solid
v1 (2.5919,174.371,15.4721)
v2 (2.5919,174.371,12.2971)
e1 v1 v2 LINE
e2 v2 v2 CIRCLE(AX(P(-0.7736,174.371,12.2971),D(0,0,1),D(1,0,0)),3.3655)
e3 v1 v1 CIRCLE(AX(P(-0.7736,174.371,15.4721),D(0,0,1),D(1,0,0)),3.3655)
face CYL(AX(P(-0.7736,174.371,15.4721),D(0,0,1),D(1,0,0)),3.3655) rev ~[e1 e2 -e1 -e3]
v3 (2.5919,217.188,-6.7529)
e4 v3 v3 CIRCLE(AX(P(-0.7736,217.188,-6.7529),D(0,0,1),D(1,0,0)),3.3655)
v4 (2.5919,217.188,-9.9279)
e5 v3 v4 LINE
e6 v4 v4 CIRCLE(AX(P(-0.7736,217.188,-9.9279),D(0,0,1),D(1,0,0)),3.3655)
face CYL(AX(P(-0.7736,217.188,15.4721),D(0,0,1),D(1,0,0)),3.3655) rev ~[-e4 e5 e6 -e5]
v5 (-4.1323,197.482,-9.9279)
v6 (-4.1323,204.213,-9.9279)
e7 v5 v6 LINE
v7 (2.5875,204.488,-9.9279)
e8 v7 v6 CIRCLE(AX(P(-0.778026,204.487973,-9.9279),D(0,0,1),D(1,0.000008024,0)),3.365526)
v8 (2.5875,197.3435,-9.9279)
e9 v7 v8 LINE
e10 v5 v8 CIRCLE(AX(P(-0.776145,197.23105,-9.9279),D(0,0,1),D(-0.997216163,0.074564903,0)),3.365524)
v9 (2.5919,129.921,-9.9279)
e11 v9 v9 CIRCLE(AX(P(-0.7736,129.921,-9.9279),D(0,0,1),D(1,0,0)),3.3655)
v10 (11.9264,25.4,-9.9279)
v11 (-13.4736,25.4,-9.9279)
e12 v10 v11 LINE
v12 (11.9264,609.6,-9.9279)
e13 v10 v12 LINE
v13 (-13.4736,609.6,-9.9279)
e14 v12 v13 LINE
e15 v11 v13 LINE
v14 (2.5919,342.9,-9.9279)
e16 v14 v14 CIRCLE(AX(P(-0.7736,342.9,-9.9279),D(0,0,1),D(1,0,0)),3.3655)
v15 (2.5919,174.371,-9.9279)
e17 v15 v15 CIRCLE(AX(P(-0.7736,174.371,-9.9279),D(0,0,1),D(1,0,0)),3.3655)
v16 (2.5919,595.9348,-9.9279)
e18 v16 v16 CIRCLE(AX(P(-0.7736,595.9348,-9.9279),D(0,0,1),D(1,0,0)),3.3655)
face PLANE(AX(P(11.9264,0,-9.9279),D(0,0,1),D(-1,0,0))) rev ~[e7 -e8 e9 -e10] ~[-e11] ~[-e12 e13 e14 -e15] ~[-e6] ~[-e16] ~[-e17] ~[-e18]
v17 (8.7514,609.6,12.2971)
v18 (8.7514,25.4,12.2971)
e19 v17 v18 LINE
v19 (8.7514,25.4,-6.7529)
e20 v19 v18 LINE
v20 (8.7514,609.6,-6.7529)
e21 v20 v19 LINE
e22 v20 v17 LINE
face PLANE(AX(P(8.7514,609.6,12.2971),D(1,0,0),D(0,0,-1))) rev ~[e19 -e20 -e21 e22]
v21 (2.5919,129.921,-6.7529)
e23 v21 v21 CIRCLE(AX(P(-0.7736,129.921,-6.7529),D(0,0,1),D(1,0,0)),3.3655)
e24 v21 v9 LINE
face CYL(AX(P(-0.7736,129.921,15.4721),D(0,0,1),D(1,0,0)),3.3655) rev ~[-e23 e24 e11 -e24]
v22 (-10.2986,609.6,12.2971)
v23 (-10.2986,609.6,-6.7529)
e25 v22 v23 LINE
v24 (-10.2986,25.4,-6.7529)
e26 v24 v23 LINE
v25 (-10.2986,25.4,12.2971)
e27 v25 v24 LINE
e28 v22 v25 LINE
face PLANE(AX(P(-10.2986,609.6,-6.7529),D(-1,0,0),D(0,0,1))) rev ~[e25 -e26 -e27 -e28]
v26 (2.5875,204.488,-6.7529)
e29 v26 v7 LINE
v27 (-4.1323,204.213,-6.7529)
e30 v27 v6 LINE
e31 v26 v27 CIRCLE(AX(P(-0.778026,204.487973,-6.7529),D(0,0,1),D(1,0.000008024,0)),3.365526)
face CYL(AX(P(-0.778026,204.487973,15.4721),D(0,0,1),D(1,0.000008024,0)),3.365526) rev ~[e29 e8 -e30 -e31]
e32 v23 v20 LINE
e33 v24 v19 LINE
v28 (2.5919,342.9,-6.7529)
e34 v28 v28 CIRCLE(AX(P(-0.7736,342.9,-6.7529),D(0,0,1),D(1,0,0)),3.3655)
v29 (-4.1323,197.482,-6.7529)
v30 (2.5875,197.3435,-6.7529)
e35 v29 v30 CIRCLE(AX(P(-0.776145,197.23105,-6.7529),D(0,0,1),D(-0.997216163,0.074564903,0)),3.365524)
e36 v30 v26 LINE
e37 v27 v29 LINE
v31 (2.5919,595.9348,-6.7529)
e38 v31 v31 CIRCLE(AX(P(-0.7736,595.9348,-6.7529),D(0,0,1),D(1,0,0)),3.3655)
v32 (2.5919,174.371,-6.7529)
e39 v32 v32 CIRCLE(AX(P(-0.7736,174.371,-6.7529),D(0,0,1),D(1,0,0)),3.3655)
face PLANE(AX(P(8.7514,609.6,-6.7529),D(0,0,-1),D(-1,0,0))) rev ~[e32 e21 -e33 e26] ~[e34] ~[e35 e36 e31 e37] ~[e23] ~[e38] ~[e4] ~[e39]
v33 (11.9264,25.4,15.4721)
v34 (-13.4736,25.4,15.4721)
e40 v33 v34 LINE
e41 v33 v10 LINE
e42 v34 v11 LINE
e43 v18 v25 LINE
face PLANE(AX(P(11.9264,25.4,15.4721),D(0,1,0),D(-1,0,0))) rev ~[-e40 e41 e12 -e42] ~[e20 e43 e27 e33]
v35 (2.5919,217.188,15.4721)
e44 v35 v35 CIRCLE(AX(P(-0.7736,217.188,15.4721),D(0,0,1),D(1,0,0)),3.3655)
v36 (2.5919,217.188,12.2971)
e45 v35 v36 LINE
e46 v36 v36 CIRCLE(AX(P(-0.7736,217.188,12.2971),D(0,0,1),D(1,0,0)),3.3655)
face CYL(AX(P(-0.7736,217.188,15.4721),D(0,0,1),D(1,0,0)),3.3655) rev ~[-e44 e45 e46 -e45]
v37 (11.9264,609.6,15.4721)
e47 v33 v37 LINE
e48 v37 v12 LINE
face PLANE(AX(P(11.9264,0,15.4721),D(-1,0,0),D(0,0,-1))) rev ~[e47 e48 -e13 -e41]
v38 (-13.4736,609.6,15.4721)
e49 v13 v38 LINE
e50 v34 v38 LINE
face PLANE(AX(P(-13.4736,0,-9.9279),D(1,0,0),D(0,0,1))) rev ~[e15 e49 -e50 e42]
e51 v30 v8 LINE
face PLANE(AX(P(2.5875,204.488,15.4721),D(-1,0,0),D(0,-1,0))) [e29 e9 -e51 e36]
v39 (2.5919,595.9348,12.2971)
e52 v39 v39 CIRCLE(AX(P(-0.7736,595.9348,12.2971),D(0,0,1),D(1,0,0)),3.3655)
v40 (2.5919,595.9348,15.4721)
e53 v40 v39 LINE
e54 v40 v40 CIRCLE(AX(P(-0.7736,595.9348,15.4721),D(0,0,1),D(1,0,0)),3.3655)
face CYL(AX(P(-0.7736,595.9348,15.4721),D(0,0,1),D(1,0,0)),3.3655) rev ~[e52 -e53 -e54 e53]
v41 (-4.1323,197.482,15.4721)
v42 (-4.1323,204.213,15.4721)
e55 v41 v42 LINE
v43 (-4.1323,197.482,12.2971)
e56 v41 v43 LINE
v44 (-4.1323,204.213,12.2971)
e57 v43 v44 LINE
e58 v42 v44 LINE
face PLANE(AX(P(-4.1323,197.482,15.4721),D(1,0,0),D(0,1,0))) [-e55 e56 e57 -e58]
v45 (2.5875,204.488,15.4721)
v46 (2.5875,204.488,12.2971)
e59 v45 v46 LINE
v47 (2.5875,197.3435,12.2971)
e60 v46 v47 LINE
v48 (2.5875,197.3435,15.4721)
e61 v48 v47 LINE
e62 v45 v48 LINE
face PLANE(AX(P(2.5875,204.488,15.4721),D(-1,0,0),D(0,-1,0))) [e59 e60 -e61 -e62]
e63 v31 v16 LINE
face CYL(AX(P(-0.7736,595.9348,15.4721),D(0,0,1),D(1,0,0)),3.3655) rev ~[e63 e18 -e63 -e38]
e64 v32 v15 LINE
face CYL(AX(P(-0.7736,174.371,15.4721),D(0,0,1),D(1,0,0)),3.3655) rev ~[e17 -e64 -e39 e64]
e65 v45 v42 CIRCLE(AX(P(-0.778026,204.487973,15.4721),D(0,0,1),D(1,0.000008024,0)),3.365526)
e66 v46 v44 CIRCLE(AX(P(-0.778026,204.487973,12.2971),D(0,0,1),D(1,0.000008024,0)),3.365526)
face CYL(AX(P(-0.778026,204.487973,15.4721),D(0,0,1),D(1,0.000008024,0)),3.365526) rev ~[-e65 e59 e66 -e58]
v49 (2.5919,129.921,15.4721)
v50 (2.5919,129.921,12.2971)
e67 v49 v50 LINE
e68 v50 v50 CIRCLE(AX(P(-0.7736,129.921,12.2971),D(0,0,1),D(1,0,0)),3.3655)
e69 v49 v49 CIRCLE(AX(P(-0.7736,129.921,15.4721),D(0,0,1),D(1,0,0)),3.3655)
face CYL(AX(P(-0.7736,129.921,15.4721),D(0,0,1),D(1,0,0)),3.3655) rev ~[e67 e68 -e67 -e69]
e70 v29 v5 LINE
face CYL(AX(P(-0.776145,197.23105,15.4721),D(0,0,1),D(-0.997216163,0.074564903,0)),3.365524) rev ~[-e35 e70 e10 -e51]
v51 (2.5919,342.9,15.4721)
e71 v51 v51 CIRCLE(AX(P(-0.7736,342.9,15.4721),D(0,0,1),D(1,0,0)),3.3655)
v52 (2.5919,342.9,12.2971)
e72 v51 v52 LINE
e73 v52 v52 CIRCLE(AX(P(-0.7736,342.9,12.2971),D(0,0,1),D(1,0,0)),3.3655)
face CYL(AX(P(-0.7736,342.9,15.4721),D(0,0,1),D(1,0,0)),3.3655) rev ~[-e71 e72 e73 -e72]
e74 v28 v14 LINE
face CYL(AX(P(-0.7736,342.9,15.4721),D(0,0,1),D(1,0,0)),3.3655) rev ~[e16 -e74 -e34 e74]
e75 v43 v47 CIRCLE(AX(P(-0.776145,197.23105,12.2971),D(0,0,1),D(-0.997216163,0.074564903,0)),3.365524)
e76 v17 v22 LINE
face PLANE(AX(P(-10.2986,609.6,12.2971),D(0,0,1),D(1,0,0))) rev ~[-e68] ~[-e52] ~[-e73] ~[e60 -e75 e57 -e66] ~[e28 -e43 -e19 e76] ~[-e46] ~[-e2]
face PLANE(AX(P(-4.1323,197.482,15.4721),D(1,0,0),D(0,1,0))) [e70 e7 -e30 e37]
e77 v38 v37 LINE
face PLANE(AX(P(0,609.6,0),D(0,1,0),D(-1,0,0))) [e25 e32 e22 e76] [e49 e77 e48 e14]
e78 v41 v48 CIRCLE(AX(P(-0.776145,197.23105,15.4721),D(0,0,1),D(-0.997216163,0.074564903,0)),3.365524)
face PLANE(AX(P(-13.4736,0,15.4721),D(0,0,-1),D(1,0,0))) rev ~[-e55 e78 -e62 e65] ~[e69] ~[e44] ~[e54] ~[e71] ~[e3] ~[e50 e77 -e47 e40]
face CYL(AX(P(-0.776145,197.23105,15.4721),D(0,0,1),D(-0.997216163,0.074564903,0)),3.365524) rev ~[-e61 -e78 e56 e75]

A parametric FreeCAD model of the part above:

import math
import FreeCAD as App
import Part
import Sketcher
Q = App.Units.Quantity


def faces_at(feature, points):
    """Names of the faces that lie closest to the given points."""
    faces = feature.Shape.Faces
    near = lambda p: min(range(len(faces)), key=lambda i: faces[i].distToShape(Part.Vertex(*p))[0])
    return sorted({f"Face{near(p) + 1}" for p in points})


def add_polygon(sketch, points):
    """Adds a closed chain of lines whose ends are joined by coincident constraints."""
    first, n = sketch.GeometryCount, len(points)
    for a, b in zip(points, points[1:] + points[:1]):
        sketch.addGeometry(Part.LineSegment(App.Vector(*a, 0), App.Vector(*b, 0)), False)
    for i in range(n):
        sketch.addConstraint(Sketcher.Constraint("Coincident", first + i, 2, first + (i + 1) % n, 1))

doc = App.newDocument("Part")
params = doc.addObject("Spreadsheet::Sheet", "Params")
for row, (alias, value) in enumerate([
    ("sketch1_width", "1 in"),
    ("pad1_length", "24 in"),
    ("thickness_wall", "0.125 in"),
    ("sketch2_width", "0.75 in"),
    ("pocket1_length", "24 in"),
    ("sketch3_diameter", "0.265 in"),
    ("sketch3_height", "0.265 in"),
    ("pocket2_length", "3 in"),
    ("sketch4_width", "1 in"),
    ("pocket3_length", "1 in"),
], start=1):
    params.set(f"A{row}", alias)
    params.set(f"B{row}", "=" + value)
    params.setAlias(f"B{row}", alias)

body = doc.addObject("PartDesign::Body", "Body")

sketch1 = body.newObject("Sketcher::SketchObject", "Sketch")
sketch1.AttachmentSupport = (doc.getObject("XZ_Plane"), [""])
sketch1.MapMode = "FlatFace"
add_polygon(sketch1, [(-13.4736, -9.9279), (-13.4736, 15.4721), (11.9264, 15.4721), (11.9264, -9.9279)])
sketch1.addConstraint([
    Sketcher.Constraint("Vertical", 0),
    Sketcher.Constraint("Horizontal", 1),
    Sketcher.Constraint("Vertical", 2),
    Sketcher.Constraint("Horizontal", 3),
    Sketcher.Constraint("Equal", 3, 0),
    Sketcher.Constraint("DistanceX", 1, 1, 1, 2, Q("1 in")),
    Sketcher.Constraint("DistanceX", 0, 2, -1, 1, 13.4736),
    Sketcher.Constraint("DistanceY", -1, 1, 0, 2, 15.472),
])
sketch1.setExpression("Constraints[9]", "Params.sketch1_width")
pad1 = body.newObject("PartDesign::Pad", "Pad")
pad1.Profile = sketch1
pad1.setExpression("Length", "Params.pad1_length")
pad1.Reversed = True
doc.recompute()

thickness = body.newObject("PartDesign::Thickness", "Thickness")
thickness.Base = (pad1, faces_at(pad1, [(3.46, 609.6, 7.005)]))
thickness.setExpression("Value", "Params.thickness_wall")
thickness.Reversed = True
thickness.Join = "Intersection"

sketch2 = body.newObject("Sketcher::SketchObject", "Sketch001")
sketch2.AttachmentSupport = (doc.getObject("XZ_Plane"), [""])
sketch2.MapMode = "FlatFace"
sketch2.AttachmentOffset = App.Placement(App.Vector(0, 0, -24 * 25.4), App.Rotation())
add_polygon(sketch2, [(-10.2986, -6.7529), (-10.2986, 12.2971), (8.7514, 12.2971), (8.7514, -6.7529)])
sketch2.addConstraint([
    Sketcher.Constraint("Vertical", 0),
    Sketcher.Constraint("Horizontal", 1),
    Sketcher.Constraint("Vertical", 2),
    Sketcher.Constraint("Horizontal", 3),
    Sketcher.Constraint("Equal", 3, 0),
    Sketcher.Constraint("DistanceX", 1, 1, 1, 2, Q("0.75 in")),
    Sketcher.Constraint("DistanceX", 0, 2, -1, 1, 10.2986),
    Sketcher.Constraint("DistanceY", -1, 1, 0, 2, 12.297),
])
sketch2.setExpression("Constraints[9]", "Params.sketch2_width")
pocket1 = body.newObject("PartDesign::Pocket", "Pocket")
pocket1.Profile = sketch2
pocket1.setExpression("Length", "Params.pocket1_length")
pocket1.Reversed = True

sketch3 = body.newObject("Sketcher::SketchObject", "Sketch002")
sketch3.AttachmentSupport = (doc.getObject("XY_Plane"), [""])
sketch3.MapMode = "FlatFace"
sketch3.AttachmentOffset = App.Placement(App.Vector(0, 0, 15.4721), App.Rotation())
sketch3.addGeometry([
    Part.Circle(App.Vector(-0.7736, 12.7, 0), App.Vector(0, 0, 1), 3.3655),
    Part.Circle(App.Vector(-0.7736, 342.9, 0), App.Vector(0, 0, 1), 3.3655),
    Part.Circle(App.Vector(-0.7736, 595.9348, 0), App.Vector(0, 0, 1), 3.3655),
    Part.Circle(App.Vector(-0.7736, 129.921, 0), App.Vector(0, 0, 1), 3.3655),
    Part.Circle(App.Vector(-0.7736, 174.371, 0), App.Vector(0, 0, 1), 3.3655),
    Part.LineSegment(App.Vector(-4.1323, 204.213, 0), App.Vector(-4.1323, 197.482, 0)),
    Part.ArcOfCircle(Part.Circle(App.Vector(-0.7762, 197.231, 0), App.Vector(0, 0, 1), 3.365473), math.radians(175.722858), math.radians(361.915561)),
    Part.LineSegment(App.Vector(2.5875, 197.3435, 0), App.Vector(2.5875, 204.488, 0)),
    Part.ArcOfCircle(Part.Circle(App.Vector(-0.778, 204.488, 0), App.Vector(0, 0, 1), 3.3655), math.radians(0), math.radians(184.686873)),
    Part.Circle(App.Vector(-0.7736, 217.188, 0), App.Vector(0, 0, 1), 3.3655),
], False)
sketch3.addConstraint([
    Sketcher.Constraint("Coincident", 5, 2, 6, 1),
    Sketcher.Constraint("Coincident", 6, 2, 7, 1),
    Sketcher.Constraint("Tangent", 7, 2, 8, 1),
    Sketcher.Constraint("Coincident", 8, 2, 5, 1),
    Sketcher.Constraint("Vertical", 5),
    Sketcher.Constraint("Vertical", 7),
    Sketcher.Constraint("Equal", 0, 1),
    Sketcher.Constraint("Equal", 1, 2),
    Sketcher.Constraint("Equal", 2, 3),
    Sketcher.Constraint("Equal", 3, 4),
    Sketcher.Constraint("Equal", 4, 6),
    Sketcher.Constraint("Equal", 6, 8),
    Sketcher.Constraint("Equal", 8, 9),
    Sketcher.Constraint("Vertical", 0, 3, 1, 3),
    Sketcher.Constraint("Vertical", 1, 3, 2, 3),
    Sketcher.Constraint("Vertical", 2, 3, 3, 3),
    Sketcher.Constraint("Vertical", 3, 3, 4, 3),
    Sketcher.Constraint("Vertical", 4, 3, 9, 3),
    Sketcher.Constraint("Diameter", 0, Q("0.265 in")),
    Sketcher.Constraint("DistanceY", -1, 1, 0, 3, Q("0.5 in")),
    Sketcher.Constraint("DistanceY", 8, 3, 9, 3, Q("0.5 in")),
    Sketcher.Constraint("DistanceY", 5, 2, 5, 1, Q("0.265 in")),
    Sketcher.Constraint("DistanceY", 0, 3, 1, 3, Q("13 in")),
    Sketcher.Constraint("DistanceY", 4, 3, 6, 3, Q("0.9 in")),
    Sketcher.Constraint("DistanceY", 3, 3, 4, 3, Q("1.75 in")),
    Sketcher.Constraint("DistanceY", -1, 1, 2, 3, Q("23.462 in")),
    Sketcher.Constraint("DistanceY", -1, 1, 3, 3, Q("5.115 in")),
    Sketcher.Constraint("DistanceY", 7, 1, 7, 2, 7.1445),
    Sketcher.Constraint("DistanceY", -1, 1, 8, 3, Q("8.0507 in")),
    Sketcher.Constraint("DistanceX", 5, 2, -1, 1, Q("0.1627 in")),
    Sketcher.Constraint("DistanceX", 6, 3, 4, 3, Q("0.0001 in")),
])
sketch3.setExpression("Constraints[18]", "Params.sketch3_diameter")
sketch3.setExpression("Constraints[21]", "Params.sketch3_height")
pocket2 = body.newObject("PartDesign::Pocket", "Pocket001")
pocket2.Profile = sketch3
pocket2.setExpression("Length", "Params.pocket2_length")

sketch4 = body.newObject("Sketcher::SketchObject", "Sketch003")
sketch4.AttachmentSupport = (doc.getObject("XY_Plane"), [""])
sketch4.MapMode = "FlatFace"
sketch4.AttachmentOffset = App.Placement(App.Vector(0, 0, 15.4721), App.Rotation())
add_polygon(sketch4, [(-13.4736, 25.4), (-13.4736, 0), (11.9264, 0), (11.9264, 25.4)])
sketch4.addConstraint([
    Sketcher.Constraint("Vertical", 0),
    Sketcher.Constraint("Horizontal", 1),
    Sketcher.Constraint("Vertical", 2),
    Sketcher.Constraint("Horizontal", 3),
    Sketcher.Constraint("PointOnObject", 0, 2, -1),
    Sketcher.Constraint("Equal", 3, 0),
    Sketcher.Constraint("DistanceX", 1, 1, 1, 2, Q("1 in")),
    Sketcher.Constraint("DistanceX", 0, 2, -1, 1, 13.4736),
])
sketch4.setExpression("Constraints[10]", "Params.sketch4_width")
pocket3 = body.newObject("PartDesign::Pocket", "Pocket002")
pocket3.Profile = sketch4
pocket3.setExpression("Length", "Params.pocket3_length")

doc.recompute()
